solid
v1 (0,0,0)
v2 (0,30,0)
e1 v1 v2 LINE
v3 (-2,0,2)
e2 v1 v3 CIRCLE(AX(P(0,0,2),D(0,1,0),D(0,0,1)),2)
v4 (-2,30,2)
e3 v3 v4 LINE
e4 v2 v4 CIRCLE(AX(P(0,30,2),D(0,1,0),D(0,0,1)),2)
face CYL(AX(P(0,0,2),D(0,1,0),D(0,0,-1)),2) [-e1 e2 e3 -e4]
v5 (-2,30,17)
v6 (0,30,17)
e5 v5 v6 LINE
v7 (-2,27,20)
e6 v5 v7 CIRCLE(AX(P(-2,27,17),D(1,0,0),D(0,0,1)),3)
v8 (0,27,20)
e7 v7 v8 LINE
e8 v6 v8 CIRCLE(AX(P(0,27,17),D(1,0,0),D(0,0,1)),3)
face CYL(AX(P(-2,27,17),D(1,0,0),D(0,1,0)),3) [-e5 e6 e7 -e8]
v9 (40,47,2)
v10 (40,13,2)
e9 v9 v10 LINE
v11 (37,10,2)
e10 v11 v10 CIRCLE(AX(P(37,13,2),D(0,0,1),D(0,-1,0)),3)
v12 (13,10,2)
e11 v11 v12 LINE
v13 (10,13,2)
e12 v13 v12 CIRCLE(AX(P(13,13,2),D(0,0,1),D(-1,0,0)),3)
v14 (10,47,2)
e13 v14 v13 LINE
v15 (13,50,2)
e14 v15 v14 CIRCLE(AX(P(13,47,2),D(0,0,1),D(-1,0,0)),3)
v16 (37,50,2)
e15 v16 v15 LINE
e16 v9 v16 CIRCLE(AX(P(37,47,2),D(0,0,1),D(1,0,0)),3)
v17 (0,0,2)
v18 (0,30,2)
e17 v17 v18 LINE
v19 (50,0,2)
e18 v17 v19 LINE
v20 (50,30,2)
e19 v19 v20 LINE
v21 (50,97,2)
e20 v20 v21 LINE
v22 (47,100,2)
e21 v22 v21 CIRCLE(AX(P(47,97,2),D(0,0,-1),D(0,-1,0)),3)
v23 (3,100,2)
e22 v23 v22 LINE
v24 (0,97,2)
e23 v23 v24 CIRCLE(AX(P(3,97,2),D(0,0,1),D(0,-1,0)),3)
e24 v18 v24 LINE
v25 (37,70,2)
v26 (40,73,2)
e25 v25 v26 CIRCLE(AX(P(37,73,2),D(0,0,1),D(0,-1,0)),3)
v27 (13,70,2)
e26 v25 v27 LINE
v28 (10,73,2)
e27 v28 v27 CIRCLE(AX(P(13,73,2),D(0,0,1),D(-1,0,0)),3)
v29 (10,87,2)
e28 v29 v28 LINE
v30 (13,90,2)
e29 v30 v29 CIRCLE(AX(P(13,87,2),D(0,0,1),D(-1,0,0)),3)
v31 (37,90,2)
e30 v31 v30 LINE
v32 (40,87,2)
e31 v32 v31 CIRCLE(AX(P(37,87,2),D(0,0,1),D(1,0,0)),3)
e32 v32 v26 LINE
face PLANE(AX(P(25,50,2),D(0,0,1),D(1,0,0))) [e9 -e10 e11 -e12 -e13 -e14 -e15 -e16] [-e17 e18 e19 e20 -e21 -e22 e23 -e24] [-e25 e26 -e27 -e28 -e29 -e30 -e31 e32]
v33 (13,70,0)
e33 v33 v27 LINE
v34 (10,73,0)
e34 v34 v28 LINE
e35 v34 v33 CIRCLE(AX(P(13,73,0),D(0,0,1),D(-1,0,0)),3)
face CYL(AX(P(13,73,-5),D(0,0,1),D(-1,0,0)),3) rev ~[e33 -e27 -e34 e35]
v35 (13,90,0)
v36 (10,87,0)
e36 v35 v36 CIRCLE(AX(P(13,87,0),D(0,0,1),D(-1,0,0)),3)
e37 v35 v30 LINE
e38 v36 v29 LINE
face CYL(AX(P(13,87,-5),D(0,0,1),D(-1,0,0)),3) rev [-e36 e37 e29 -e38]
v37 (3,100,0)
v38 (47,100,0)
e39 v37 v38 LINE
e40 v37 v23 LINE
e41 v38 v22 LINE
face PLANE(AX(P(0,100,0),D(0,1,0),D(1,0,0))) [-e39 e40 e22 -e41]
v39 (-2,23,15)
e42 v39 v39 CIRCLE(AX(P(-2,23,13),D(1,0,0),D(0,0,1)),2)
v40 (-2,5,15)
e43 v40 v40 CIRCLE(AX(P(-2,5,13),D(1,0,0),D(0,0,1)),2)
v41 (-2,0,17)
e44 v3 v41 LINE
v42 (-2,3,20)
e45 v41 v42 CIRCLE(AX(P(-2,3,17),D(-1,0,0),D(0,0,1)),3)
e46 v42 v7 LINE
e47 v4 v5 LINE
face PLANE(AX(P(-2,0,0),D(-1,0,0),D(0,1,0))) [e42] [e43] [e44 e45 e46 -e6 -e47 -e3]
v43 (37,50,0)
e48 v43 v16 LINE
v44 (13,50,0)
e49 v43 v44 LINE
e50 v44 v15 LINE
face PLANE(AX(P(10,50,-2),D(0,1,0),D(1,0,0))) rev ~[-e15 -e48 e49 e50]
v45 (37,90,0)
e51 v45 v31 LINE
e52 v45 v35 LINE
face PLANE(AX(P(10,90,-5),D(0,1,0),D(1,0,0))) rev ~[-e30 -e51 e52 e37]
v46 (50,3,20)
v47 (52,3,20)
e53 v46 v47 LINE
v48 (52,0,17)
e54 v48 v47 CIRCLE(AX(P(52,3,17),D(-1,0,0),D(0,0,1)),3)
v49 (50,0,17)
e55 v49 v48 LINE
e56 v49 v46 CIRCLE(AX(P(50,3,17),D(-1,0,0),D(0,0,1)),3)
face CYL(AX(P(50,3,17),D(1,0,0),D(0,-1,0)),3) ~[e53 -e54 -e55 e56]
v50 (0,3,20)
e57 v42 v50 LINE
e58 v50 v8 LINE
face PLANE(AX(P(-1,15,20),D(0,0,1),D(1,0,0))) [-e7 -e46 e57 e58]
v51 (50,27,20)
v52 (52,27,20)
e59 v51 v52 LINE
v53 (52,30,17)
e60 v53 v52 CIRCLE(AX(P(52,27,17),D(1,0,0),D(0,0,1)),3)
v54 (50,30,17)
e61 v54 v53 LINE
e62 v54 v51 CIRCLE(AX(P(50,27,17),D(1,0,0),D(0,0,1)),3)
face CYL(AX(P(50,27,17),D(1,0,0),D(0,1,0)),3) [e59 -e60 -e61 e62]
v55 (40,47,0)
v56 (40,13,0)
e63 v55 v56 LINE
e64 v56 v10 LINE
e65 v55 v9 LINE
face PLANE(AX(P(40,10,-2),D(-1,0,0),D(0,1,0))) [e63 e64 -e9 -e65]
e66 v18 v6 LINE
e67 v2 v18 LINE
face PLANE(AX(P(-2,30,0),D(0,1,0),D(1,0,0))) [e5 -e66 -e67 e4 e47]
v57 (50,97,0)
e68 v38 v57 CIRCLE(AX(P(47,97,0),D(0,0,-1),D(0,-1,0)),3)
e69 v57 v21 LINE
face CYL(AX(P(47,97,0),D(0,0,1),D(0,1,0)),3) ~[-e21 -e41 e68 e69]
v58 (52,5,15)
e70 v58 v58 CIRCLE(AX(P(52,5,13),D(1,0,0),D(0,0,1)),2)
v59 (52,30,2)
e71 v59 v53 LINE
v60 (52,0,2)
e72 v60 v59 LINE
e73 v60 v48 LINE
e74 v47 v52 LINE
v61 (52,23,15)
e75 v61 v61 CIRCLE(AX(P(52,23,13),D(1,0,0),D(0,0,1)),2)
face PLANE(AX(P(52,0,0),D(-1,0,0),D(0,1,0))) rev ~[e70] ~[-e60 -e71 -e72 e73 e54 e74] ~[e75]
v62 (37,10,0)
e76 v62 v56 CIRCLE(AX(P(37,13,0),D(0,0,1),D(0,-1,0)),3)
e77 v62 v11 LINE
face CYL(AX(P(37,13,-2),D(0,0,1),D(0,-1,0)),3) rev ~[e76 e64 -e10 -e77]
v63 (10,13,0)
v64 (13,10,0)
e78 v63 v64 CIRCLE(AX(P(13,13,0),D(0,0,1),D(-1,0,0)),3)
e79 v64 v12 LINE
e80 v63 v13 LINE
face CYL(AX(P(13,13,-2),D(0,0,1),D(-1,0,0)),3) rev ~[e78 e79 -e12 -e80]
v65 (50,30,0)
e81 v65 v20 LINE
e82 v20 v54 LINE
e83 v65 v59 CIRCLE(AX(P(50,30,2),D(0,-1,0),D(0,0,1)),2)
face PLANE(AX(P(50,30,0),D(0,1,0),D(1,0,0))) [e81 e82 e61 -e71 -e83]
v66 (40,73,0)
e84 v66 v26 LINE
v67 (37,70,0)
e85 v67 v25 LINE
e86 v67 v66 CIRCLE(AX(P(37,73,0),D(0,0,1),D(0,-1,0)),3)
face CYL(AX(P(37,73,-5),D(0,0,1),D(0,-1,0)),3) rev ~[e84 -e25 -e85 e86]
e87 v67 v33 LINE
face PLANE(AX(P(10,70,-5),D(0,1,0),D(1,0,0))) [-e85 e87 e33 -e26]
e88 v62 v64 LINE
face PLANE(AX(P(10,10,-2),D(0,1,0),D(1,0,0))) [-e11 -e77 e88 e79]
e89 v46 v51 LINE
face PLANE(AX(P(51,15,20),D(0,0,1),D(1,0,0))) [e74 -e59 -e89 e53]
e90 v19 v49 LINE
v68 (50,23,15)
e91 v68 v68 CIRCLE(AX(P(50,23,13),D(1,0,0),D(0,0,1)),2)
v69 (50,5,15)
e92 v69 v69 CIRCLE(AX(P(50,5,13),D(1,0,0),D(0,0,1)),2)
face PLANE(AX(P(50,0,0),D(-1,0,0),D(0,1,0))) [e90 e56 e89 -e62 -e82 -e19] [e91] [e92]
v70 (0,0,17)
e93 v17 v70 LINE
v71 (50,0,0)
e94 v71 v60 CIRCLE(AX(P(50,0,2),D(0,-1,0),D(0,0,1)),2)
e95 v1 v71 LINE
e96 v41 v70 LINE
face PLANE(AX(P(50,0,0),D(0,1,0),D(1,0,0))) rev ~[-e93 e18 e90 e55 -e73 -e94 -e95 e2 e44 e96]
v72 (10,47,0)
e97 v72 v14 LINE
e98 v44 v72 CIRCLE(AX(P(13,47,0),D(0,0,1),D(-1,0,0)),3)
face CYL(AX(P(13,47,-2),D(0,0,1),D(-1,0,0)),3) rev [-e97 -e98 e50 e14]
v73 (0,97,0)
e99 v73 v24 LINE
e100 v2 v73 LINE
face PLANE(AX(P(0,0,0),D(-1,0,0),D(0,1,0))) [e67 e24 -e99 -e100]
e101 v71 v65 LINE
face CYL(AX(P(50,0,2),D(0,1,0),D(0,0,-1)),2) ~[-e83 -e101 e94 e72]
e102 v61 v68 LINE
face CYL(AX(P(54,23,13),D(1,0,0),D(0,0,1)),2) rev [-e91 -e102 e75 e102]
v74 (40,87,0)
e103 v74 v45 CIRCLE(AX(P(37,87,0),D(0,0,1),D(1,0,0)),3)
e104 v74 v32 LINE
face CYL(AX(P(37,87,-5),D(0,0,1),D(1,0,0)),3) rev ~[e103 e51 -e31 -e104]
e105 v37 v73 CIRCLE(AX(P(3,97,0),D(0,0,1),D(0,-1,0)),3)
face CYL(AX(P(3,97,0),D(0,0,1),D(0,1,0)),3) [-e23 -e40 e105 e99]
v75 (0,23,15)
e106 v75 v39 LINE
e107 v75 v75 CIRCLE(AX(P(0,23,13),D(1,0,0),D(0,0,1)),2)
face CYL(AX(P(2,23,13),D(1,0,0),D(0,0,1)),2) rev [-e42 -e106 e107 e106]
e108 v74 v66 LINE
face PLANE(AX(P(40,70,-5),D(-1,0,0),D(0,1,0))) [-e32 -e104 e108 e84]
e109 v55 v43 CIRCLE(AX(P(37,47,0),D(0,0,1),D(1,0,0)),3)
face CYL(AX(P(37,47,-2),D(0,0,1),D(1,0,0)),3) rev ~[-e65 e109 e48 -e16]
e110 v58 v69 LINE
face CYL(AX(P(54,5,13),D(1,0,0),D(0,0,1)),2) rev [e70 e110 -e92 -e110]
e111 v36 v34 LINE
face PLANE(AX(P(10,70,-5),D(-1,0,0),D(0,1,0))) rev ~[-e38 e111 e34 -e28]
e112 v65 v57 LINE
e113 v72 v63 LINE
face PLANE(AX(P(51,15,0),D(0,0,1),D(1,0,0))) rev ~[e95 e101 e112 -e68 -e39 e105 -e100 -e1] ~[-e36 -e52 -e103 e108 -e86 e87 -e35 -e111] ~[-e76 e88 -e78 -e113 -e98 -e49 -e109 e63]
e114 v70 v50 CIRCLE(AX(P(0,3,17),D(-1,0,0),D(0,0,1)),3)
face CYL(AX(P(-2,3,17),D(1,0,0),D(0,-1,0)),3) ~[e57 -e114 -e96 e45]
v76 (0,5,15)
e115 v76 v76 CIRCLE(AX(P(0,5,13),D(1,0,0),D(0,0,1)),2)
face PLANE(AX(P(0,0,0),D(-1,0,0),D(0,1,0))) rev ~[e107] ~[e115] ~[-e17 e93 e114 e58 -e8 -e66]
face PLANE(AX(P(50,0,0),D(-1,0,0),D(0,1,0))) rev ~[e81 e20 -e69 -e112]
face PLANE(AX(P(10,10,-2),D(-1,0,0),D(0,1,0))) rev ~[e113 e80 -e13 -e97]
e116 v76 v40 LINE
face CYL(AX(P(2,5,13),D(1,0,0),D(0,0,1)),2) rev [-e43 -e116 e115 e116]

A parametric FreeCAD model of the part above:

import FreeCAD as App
import Part
import Sketcher
from FreeCAD import Vector
Q = App.Units.Quantity


def edges_at(feature, points):
    """Names of the edges that pass closest to the given points."""
    edges = feature.Shape.Edges
    near = lambda p: min(range(len(edges)), key=lambda i: edges[i].distToShape(Part.Vertex(*p))[0])
    return sorted({f"Edge{near(p) + 1}" for p in points})


def add_polygon(sketch, points):
    """Adds a closed chain of lines whose ends are joined by coincident constraints."""
    first, n = sketch.GeometryCount, len(points)
    for a, b in zip(points, points[1:] + points[:1]):
        sketch.addGeometry(Part.LineSegment(App.Vector(*a, 0), App.Vector(*b, 0)), False)
    for i in range(n):
        sketch.addConstraint(Sketcher.Constraint("Coincident", first + i, 2, first + (i + 1) % n, 1))

doc = App.newDocument("Part")
params = doc.addObject("Spreadsheet::Sheet", "Params")
for row, (alias, value) in enumerate([
    ("sketch1_diameter", "4 mm"),
    ("pad1_length", "10 mm"),
    ("sketch2_diameter", "4 mm"),
    ("pad2_length", "10 mm"),
    ("sketch3_width", "2 mm"),
    ("sketch3_height", "30 mm"),
    ("pad3_length", "20 mm"),
    ("fillet_radius", "3 mm"),
    ("sketch4_diameter", "4 mm"),
    ("pad4_length", "10 mm"),
    ("sketch5_diameter", "4 mm"),
    ("pad5_length", "10 mm"),
    ("sketch6_width", "2 mm"),
    ("sketch6_height", "30 mm"),
    ("pad6_length", "20 mm"),
    ("fillet2_radius", "3 mm"),
    ("sketch7_width", "30 mm"),
    ("sketch7_height", "40 mm"),
    ("pad7_length", "10 mm"),
    ("fillet3_radius", "3 mm"),
    ("sketch8_width", "30 mm"),
    ("sketch8_height", "20 mm"),
    ("pad8_length", "10 mm"),
    ("fillet4_radius", "3 mm"),
    ("sketch9_width", "50 mm"),
    ("sketch9_height", "100 mm"),
    ("pad9_length", "2 mm"),
    ("fillet5_radius", "3 mm"),
    ("fillet6_radius", "3 mm"),
    ("fillet7_radius", "2 mm"),
    ("fillet8_radius", "2 mm"),
], start=1):
    params.set(f"A{row}", alias)
    params.set(f"B{row}", "=" + value)
    params.setAlias(f"B{row}", alias)

body = doc.addObject("PartDesign::Body", "Body")

# Sketch on YZ plane
sketch1 = body.newObject("Sketcher::SketchObject", "Sketch")
sketch1.AttachmentSupport = (doc.getObject("YZ_Plane"), [""])
sketch1.MapMode = "FlatFace"
sketch1.AttachmentOffset = App.Placement(Vector(0, 0, -10), App.Rotation())
sketch1.addGeometry(Part.Circle(Vector(23, 13, 0), Vector(0, 0, 1), 2), False)
sketch1.addConstraint([
    Sketcher.Constraint("Diameter", 0, Q("4 mm")),
    Sketcher.Constraint("DistanceX", -1, 1, 0, 3, Q("23 mm")),
    Sketcher.Constraint("DistanceY", -1, 1, 0, 3, Q("13 mm")),
])
sketch1.setExpression("Constraints[0]", "Params.sketch1_diameter")
pad1 = body.newObject("PartDesign::Pad", "Pad")
pad1.Profile = sketch1
pad1.setExpression("Length", "Params.pad1_length")
pad1.Reversed = True
body2 = doc.addObject("PartDesign::Body", "Body001")

# Sketch on YZ plane
sketch2 = body2.newObject("Sketcher::SketchObject", "Sketch001")
sketch2.AttachmentSupport = (doc.getObject("YZ_Plane001"), [""])
sketch2.MapMode = "FlatFace"
sketch2.AttachmentOffset = App.Placement(Vector(0, 0, -10), App.Rotation())
sketch2.addGeometry(Part.Circle(Vector(5, 13, 0), Vector(0, 0, 1), 2), False)
sketch2.addConstraint([
    Sketcher.Constraint("Diameter", 0, Q("4 mm")),
    Sketcher.Constraint("DistanceX", -1, 1, 0, 3, Q("5 mm")),
    Sketcher.Constraint("DistanceY", -1, 1, 0, 3, Q("13 mm")),
])
sketch2.setExpression("Constraints[0]", "Params.sketch2_diameter")
pad2 = body2.newObject("PartDesign::Pad", "Pad001")
pad2.Profile = sketch2
pad2.setExpression("Length", "Params.pad2_length")
pad2.Reversed = True
body3 = doc.addObject("PartDesign::Body", "Body002")

# Sketch on XY plane
sketch3 = body3.newObject("Sketcher::SketchObject", "Sketch002")
sketch3.AttachmentSupport = (doc.getObject("XY_Plane002"), [""])
sketch3.MapMode = "FlatFace"
add_polygon(sketch3, [(-14, 30), (-14, 0), (-12, 0), (-12, 30)])  # lines 0-3
sketch3.addConstraint([
    Sketcher.Constraint("Vertical", 0),
    Sketcher.Constraint("Horizontal", 1),
    Sketcher.Constraint("Vertical", 2),
    Sketcher.Constraint("Horizontal", 3),
    Sketcher.Constraint("PointOnObject", 0, 2, -1),
    Sketcher.Constraint("DistanceX", 1, 1, 1, 2, Q("2 mm")),
    Sketcher.Constraint("DistanceY", 0, 2, 0, 1, Q("30 mm")),
    Sketcher.Constraint("DistanceX", 0, 2, -1, 1, Q("14 mm")),
])
sketch3.setExpression("Constraints[9]", "Params.sketch3_width")
sketch3.setExpression("Constraints[10]", "Params.sketch3_height")
pad3 = body3.newObject("PartDesign::Pad", "Pad002")
pad3.Profile = sketch3
pad3.setExpression("Length", "Params.pad3_length")
doc.recompute()

fillet = body3.newObject("PartDesign::Fillet", "Fillet")
fillet.Base = (pad3, edges_at(pad3, [(-13, 0, 20), (-13, 30, 20)]))
fillet.setExpression("Radius", "Params.fillet_radius")
doc.recompute()

boolean = body3.newObject("PartDesign::Boolean", "Boolean")
boolean.Type = "Cut"
boolean.addObjects([body2])
doc.recompute()

boolean2 = body3.newObject("PartDesign::Boolean", "Boolean001")
boolean2.Type = "Cut"
boolean2.addObjects([body])
body4 = doc.addObject("PartDesign::Body", "Body003")
doc.recompute()

body3.Placement = App.Placement(Vector(12, 0, 0), App.Rotation(Vector(0, 0, 1), 0))
boolean3 = body4.newObject("PartDesign::Boolean", "Boolean002")
boolean3.Type = "Fuse"
boolean3.addObjects([body3])
body5 = doc.addObject("PartDesign::Body", "Body004")

# Sketch on YZ plane
sketch4 = body5.newObject("Sketcher::SketchObject", "Sketch003")
sketch4.AttachmentSupport = (doc.getObject("YZ_Plane004"), [""])
sketch4.MapMode = "FlatFace"
sketch4.AttachmentOffset = App.Placement(Vector(0, 0, -10), App.Rotation())
sketch4.addGeometry(Part.Circle(Vector(23, 13, 0), Vector(0, 0, 1), 2), False)
sketch4.addConstraint([
    Sketcher.Constraint("Diameter", 0, Q("4 mm")),
    Sketcher.Constraint("DistanceX", -1, 1, 0, 3, Q("23 mm")),
    Sketcher.Constraint("DistanceY", -1, 1, 0, 3, Q("13 mm")),
])
sketch4.setExpression("Constraints[0]", "Params.sketch4_diameter")
pad4 = body5.newObject("PartDesign::Pad", "Pad003")
pad4.Profile = sketch4
pad4.setExpression("Length", "Params.pad4_length")
pad4.Reversed = True
body6 = doc.addObject("PartDesign::Body", "Body005")

# Sketch on YZ plane
sketch5 = body6.newObject("Sketcher::SketchObject", "Sketch004")
sketch5.AttachmentSupport = (doc.getObject("YZ_Plane005"), [""])
sketch5.MapMode = "FlatFace"
sketch5.AttachmentOffset = App.Placement(Vector(0, 0, -10), App.Rotation())
sketch5.addGeometry(Part.Circle(Vector(5, 13, 0), Vector(0, 0, 1), 2), False)
sketch5.addConstraint([
    Sketcher.Constraint("Diameter", 0, Q("4 mm")),
    Sketcher.Constraint("DistanceX", -1, 1, 0, 3, Q("5 mm")),
    Sketcher.Constraint("DistanceY", -1, 1, 0, 3, Q("13 mm")),
])
sketch5.setExpression("Constraints[0]", "Params.sketch5_diameter")
pad5 = body6.newObject("PartDesign::Pad", "Pad004")
pad5.Profile = sketch5
pad5.setExpression("Length", "Params.pad5_length")
pad5.Reversed = True
body7 = doc.addObject("PartDesign::Body", "Body006")

# Sketch on XY plane
sketch6 = body7.newObject("Sketcher::SketchObject", "Sketch005")
sketch6.AttachmentSupport = (doc.getObject("XY_Plane006"), [""])
sketch6.MapMode = "FlatFace"
add_polygon(sketch6, [(-14, 30), (-14, 0), (-12, 0), (-12, 30)])  # lines 0-3
sketch6.addConstraint([
    Sketcher.Constraint("Vertical", 0),
    Sketcher.Constraint("Horizontal", 1),
    Sketcher.Constraint("Vertical", 2),
    Sketcher.Constraint("Horizontal", 3),
    Sketcher.Constraint("PointOnObject", 0, 2, -1),
    Sketcher.Constraint("DistanceX", 1, 1, 1, 2, Q("2 mm")),
    Sketcher.Constraint("DistanceY", 0, 2, 0, 1, Q("30 mm")),
    Sketcher.Constraint("DistanceX", 0, 2, -1, 1, Q("14 mm")),
])
sketch6.setExpression("Constraints[9]", "Params.sketch6_width")
sketch6.setExpression("Constraints[10]", "Params.sketch6_height")
pad6 = body7.newObject("PartDesign::Pad", "Pad005")
pad6.Profile = sketch6
pad6.setExpression("Length", "Params.pad6_length")
doc.recompute()

fillet2 = body7.newObject("PartDesign::Fillet", "Fillet001")
fillet2.Base = (pad6, edges_at(pad6, [(-13, 0, 20), (-13, 30, 20)]))
fillet2.setExpression("Radius", "Params.fillet2_radius")
doc.recompute()

boolean4 = body7.newObject("PartDesign::Boolean", "Boolean003")
boolean4.Type = "Cut"
boolean4.addObjects([body6])
doc.recompute()

boolean5 = body7.newObject("PartDesign::Boolean", "Boolean004")
boolean5.Type = "Cut"
boolean5.addObjects([body5])
body8 = doc.addObject("PartDesign::Body", "Body007")
doc.recompute()

body7.Placement = App.Placement(Vector(64, 0, 0), App.Rotation(Vector(0, 0, 1), 0))
boolean6 = body8.newObject("PartDesign::Boolean", "Boolean005")
boolean6.Type = "Fuse"
boolean6.addObjects([body7])
body9 = doc.addObject("PartDesign::Body", "Body008")

# Sketch on XY plane
sketch7 = body9.newObject("Sketcher::SketchObject", "Sketch006")
sketch7.AttachmentSupport = (doc.getObject("XY_Plane008"), [""])
sketch7.MapMode = "FlatFace"
sketch7.AttachmentOffset = App.Placement(Vector(0, 0, -2), App.Rotation())
add_polygon(sketch7, [(10, 50), (10, 10), (40, 10), (40, 50)])  # lines 0-3
sketch7.addConstraint([
    Sketcher.Constraint("Vertical", 0),
    Sketcher.Constraint("Horizontal", 1),
    Sketcher.Constraint("Vertical", 2),
    Sketcher.Constraint("Horizontal", 3),
    Sketcher.Constraint("DistanceX", 1, 1, 1, 2, Q("30 mm")),
    Sketcher.Constraint("DistanceY", 0, 2, 0, 1, Q("40 mm")),
    Sketcher.Constraint("DistanceX", -1, 1, 0, 2, Q("10 mm")),
    Sketcher.Constraint("DistanceY", -1, 1, 0, 2, Q("10 mm")),
])
sketch7.setExpression("Constraints[8]", "Params.sketch7_width")
sketch7.setExpression("Constraints[9]", "Params.sketch7_height")
pad7 = body9.newObject("PartDesign::Pad", "Pad006")
pad7.Profile = sketch7
pad7.setExpression("Length", "Params.pad7_length")
doc.recompute()

fillet3 = body9.newObject("PartDesign::Fillet", "Fillet002")
fillet3.Base = (pad7, edges_at(pad7, [
    (10, 10, 3),
    (10, 50, 3),
    (40, 10, 3),
    (40, 50, 3),
]))
fillet3.setExpression("Radius", "Params.fillet3_radius")
body10 = doc.addObject("PartDesign::Body", "Body009")

# Sketch on XY plane
sketch8 = body10.newObject("Sketcher::SketchObject", "Sketch007")
sketch8.AttachmentSupport = (doc.getObject("XY_Plane009"), [""])
sketch8.MapMode = "FlatFace"
add_polygon(sketch8, [(10, 90), (10, 70), (40, 70), (40, 90)])  # lines 0-3
sketch8.addConstraint([
    Sketcher.Constraint("Vertical", 0),
    Sketcher.Constraint("Horizontal", 1),
    Sketcher.Constraint("Vertical", 2),
    Sketcher.Constraint("Horizontal", 3),
    Sketcher.Constraint("DistanceX", 1, 1, 1, 2, Q("30 mm")),
    Sketcher.Constraint("DistanceY", 0, 2, 0, 1, Q("20 mm")),
    Sketcher.Constraint("DistanceX", -1, 1, 0, 2, Q("10 mm")),
    Sketcher.Constraint("DistanceY", -1, 1, 0, 2, Q("70 mm")),
])
sketch8.setExpression("Constraints[8]", "Params.sketch8_width")
sketch8.setExpression("Constraints[9]", "Params.sketch8_height")
pad8 = body10.newObject("PartDesign::Pad", "Pad007")
pad8.Profile = sketch8
pad8.setExpression("Length", "Params.pad8_length")
doc.recompute()

fillet4 = body10.newObject("PartDesign::Fillet", "Fillet003")
fillet4.Base = (pad8, edges_at(pad8, [
    (10, 70, 5),
    (10, 90, 5),
    (40, 70, 5),
    (40, 90, 5),
]))
fillet4.setExpression("Radius", "Params.fillet4_radius")
body11 = doc.addObject("PartDesign::Body", "Body010")
doc.recompute()

body10.Placement = App.Placement(Vector(0, 0, -5), App.Rotation(Vector(0, 0, 1), 0))
boolean7 = body11.newObject("PartDesign::Boolean", "Boolean006")
boolean7.Type = "Fuse"
boolean7.addObjects([body10])
body12 = doc.addObject("PartDesign::Body", "Body011")

# Sketch on XY plane
sketch9 = body12.newObject("Sketcher::SketchObject", "Sketch008")
sketch9.AttachmentSupport = (doc.getObject("XY_Plane011"), [""])
sketch9.MapMode = "FlatFace"
add_polygon(sketch9, [(0, 100), (0, 0), (50, 0), (50, 100)])  # lines 0-3
sketch9.addConstraint([
    Sketcher.Constraint("Vertical", 0),
    Sketcher.Constraint("Horizontal", 1),
    Sketcher.Constraint("Vertical", 2),
    Sketcher.Constraint("Horizontal", 3),
    Sketcher.Constraint("Coincident", 0, 2, -1, 1),
    Sketcher.Constraint("DistanceX", 1, 1, 1, 2, Q("50 mm")),
    Sketcher.Constraint("DistanceY", 0, 2, 0, 1, Q("100 mm")),
])
sketch9.setExpression("Constraints[9]", "Params.sketch9_width")
sketch9.setExpression("Constraints[10]", "Params.sketch9_height")
pad9 = body12.newObject("PartDesign::Pad", "Pad008")
pad9.Profile = sketch9
pad9.setExpression("Length", "Params.pad9_length")
doc.recompute()

boolean8 = body12.newObject("PartDesign::Boolean", "Boolean007")
boolean8.Type = "Cut"
boolean8.addObjects([body11])
doc.recompute()

boolean9 = body12.newObject("PartDesign::Boolean", "Boolean008")
boolean9.Type = "Cut"
boolean9.addObjects([body9])
doc.recompute()

fillet5 = body12.newObject("PartDesign::Fillet", "Fillet004")
fillet5.Base = (boolean9, edges_at(boolean9, [(50, 100, 1)]))
fillet5.setExpression("Radius", "Params.fillet5_radius")
doc.recompute()

fillet6 = body12.newObject("PartDesign::Fillet", "Fillet005")
fillet6.Base = (fillet5, edges_at(fillet5, [(0, 100, 1)]))
fillet6.setExpression("Radius", "Params.fillet6_radius")
doc.recompute()

boolean10 = body12.newObject("PartDesign::Boolean", "Boolean009")
boolean10.Type = "Fuse"
boolean10.addObjects([body4])
doc.recompute()

boolean11 = body12.newObject("PartDesign::Boolean", "Boolean010")
boolean11.Type = "Fuse"
boolean11.addObjects([body8])
doc.recompute()

fillet7 = body12.newObject("PartDesign::Fillet", "Fillet006")
fillet7.Base = (boolean11, edges_at(boolean11, [(-2, 15, 0)]))
fillet7.setExpression("Radius", "Params.fillet7_radius")
doc.recompute()

fillet8 = body12.newObject("PartDesign::Fillet", "Fillet007")
fillet8.Base = (fillet7, edges_at(fillet7, [(52, 15, 0)]))
fillet8.setExpression("Radius", "Params.fillet8_radius")

doc.recompute()
